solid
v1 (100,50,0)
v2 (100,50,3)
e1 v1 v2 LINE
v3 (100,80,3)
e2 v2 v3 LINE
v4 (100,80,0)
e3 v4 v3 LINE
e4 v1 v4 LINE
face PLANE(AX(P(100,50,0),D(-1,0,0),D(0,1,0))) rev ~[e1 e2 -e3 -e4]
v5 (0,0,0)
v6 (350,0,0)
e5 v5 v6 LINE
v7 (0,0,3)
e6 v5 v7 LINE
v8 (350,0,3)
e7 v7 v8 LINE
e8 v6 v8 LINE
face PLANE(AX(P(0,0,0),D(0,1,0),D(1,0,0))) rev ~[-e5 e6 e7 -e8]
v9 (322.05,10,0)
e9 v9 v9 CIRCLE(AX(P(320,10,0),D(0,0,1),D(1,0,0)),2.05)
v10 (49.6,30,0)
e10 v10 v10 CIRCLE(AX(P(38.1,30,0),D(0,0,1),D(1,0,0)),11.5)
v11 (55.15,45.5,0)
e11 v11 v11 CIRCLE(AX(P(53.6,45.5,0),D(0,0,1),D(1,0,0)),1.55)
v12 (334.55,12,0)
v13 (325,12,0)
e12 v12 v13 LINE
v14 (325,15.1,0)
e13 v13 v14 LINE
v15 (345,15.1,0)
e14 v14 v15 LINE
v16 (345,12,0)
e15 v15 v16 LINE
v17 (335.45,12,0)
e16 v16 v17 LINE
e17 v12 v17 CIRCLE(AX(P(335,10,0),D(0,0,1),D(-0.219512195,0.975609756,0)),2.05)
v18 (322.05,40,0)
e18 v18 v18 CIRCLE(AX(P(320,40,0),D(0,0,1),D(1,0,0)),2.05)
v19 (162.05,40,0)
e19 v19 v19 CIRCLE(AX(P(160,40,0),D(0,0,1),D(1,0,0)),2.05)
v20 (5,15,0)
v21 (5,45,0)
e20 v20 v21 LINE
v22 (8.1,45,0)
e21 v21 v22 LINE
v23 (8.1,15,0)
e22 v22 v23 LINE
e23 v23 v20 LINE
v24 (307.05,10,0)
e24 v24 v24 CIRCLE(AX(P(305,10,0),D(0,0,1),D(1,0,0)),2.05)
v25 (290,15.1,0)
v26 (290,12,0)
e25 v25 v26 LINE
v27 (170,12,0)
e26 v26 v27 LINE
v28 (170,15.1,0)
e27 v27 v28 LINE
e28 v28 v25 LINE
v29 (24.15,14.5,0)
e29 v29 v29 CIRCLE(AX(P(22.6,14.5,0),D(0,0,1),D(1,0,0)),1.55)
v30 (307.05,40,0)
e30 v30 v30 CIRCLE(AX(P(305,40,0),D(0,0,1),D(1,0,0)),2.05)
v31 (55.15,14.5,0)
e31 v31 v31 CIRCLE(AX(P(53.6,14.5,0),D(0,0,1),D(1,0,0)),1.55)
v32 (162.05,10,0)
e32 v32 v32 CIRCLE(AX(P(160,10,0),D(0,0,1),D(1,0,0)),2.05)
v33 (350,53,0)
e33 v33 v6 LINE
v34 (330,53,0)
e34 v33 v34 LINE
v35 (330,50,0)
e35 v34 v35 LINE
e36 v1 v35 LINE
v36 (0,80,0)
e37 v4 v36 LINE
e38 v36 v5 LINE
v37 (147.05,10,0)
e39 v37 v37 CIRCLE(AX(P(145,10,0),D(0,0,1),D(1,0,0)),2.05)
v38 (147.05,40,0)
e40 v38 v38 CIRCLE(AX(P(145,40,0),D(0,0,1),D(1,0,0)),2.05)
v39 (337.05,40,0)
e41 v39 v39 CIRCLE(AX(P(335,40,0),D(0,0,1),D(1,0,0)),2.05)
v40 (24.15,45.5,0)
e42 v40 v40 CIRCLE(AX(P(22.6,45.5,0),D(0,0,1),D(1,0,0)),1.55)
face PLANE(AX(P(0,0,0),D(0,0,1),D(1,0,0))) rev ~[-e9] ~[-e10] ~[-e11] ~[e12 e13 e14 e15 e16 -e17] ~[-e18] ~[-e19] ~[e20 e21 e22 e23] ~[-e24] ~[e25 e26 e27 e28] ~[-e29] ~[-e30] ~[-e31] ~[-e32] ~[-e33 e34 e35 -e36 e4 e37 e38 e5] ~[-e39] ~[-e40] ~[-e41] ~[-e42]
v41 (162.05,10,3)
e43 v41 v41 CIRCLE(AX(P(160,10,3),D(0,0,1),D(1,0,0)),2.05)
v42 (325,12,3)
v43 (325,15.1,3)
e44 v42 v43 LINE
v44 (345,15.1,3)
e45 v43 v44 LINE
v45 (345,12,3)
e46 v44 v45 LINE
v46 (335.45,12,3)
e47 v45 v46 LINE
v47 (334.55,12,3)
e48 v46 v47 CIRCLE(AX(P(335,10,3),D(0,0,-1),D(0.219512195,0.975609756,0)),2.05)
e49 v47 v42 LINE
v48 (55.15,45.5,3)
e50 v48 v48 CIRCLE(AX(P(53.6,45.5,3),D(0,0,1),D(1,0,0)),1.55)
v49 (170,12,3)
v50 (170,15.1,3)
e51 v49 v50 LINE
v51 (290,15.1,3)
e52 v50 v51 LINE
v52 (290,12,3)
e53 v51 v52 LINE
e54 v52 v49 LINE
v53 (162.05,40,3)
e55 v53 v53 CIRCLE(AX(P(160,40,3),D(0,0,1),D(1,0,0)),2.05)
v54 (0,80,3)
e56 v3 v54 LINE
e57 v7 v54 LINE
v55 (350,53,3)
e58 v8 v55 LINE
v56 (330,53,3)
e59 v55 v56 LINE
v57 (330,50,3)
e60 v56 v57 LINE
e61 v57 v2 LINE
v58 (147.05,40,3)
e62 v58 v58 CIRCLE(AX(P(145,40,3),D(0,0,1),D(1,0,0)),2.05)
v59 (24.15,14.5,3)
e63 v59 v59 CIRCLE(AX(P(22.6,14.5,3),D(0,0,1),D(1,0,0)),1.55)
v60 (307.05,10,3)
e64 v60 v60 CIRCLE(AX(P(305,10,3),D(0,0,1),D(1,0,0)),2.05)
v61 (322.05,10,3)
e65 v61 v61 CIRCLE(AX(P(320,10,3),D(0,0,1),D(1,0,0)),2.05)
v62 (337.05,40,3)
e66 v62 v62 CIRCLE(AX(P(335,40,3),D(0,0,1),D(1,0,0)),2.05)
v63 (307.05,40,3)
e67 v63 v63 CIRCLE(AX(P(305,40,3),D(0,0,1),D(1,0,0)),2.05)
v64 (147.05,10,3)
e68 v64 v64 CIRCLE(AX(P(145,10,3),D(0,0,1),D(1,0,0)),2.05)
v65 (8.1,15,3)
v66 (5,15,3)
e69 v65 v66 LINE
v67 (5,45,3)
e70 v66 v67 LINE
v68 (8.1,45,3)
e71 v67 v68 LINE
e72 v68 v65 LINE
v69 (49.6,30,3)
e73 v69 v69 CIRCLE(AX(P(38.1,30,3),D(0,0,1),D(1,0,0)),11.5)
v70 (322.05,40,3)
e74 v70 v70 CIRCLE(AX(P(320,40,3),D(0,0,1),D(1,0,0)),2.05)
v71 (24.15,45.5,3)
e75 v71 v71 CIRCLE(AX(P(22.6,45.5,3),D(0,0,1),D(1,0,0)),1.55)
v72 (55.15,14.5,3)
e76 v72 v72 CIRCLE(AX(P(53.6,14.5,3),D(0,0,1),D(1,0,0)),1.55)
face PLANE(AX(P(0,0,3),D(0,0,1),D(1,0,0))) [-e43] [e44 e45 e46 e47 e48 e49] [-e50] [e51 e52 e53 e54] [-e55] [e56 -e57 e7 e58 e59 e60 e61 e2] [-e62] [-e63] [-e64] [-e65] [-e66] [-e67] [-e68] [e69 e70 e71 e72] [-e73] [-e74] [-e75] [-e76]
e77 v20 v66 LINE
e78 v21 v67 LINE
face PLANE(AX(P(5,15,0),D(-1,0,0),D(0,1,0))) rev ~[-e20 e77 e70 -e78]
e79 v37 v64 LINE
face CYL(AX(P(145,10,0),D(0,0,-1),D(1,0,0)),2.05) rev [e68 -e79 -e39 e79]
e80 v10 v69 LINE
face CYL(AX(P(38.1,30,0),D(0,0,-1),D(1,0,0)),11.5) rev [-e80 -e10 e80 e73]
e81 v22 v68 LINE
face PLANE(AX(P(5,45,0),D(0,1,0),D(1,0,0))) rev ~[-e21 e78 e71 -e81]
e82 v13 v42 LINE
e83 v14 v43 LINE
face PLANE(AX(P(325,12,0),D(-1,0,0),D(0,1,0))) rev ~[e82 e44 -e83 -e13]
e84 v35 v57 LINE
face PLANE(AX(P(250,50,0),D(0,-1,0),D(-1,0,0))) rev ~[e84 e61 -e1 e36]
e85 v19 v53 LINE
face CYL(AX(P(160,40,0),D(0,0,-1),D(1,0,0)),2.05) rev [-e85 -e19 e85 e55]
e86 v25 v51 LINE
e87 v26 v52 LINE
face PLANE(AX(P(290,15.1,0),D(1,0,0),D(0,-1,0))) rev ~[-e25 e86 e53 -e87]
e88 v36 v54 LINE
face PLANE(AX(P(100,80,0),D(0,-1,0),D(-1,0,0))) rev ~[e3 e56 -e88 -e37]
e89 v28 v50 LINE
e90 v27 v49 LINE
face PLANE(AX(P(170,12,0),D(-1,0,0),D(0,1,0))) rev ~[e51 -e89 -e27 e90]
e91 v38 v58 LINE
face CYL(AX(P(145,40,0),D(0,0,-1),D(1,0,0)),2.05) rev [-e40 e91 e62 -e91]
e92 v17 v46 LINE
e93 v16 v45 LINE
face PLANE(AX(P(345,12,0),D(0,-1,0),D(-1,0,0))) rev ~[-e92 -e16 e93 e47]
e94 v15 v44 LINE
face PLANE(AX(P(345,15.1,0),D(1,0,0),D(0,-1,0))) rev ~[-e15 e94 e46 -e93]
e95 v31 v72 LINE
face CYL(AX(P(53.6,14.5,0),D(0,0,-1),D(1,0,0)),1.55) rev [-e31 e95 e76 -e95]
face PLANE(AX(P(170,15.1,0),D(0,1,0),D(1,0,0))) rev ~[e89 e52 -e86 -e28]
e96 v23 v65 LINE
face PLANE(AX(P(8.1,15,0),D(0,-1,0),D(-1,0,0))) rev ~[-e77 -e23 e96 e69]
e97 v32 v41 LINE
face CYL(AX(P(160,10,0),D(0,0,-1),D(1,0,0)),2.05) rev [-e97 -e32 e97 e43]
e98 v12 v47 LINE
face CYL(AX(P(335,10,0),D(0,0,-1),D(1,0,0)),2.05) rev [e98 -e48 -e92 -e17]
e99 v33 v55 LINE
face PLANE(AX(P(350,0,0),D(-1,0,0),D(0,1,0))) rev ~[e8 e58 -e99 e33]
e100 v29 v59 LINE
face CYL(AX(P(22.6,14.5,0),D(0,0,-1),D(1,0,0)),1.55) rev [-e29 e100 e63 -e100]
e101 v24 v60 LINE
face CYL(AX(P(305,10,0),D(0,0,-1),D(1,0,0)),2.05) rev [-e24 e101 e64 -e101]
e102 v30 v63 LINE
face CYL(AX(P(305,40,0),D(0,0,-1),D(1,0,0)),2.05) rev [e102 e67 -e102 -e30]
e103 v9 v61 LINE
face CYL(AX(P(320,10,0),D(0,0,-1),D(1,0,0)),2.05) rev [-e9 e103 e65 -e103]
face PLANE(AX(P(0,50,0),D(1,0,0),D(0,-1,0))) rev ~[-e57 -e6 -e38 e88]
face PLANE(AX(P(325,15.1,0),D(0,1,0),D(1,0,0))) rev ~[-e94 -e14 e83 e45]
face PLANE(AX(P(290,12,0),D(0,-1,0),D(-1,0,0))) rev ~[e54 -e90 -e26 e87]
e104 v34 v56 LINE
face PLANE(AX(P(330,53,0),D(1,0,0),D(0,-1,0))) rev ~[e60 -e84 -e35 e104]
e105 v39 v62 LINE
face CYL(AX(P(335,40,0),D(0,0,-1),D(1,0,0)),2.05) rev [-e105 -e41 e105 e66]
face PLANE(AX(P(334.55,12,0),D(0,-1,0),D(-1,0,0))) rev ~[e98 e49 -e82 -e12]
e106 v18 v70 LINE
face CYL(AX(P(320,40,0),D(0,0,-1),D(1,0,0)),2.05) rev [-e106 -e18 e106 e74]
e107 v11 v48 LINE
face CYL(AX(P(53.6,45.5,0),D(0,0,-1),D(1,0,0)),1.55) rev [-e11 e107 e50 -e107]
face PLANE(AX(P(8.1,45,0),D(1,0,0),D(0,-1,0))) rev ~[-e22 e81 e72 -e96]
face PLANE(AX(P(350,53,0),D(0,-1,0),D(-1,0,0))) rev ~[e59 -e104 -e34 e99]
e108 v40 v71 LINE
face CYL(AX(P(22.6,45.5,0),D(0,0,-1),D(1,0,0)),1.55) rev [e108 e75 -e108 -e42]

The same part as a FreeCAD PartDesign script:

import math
import FreeCAD as App
import Part
import Sketcher

V = App.Vector

doc = App.newDocument("Part")
body = doc.addObject("PartDesign::Body", "Body")

# Sketch on XY plane
sketch1 = doc.addObject("Sketcher::SketchObject", "Sketch")
body.addObject(sketch1)
sketch1.AttachmentSupport = (doc.XY_Plane, [""])
sketch1.MapMode = "FlatFace"
sketch1.addGeometry([
    Part.LineSegment(V(0, 0, 0), V(350, 0, 0)),  # 0
    Part.LineSegment(V(350, 0, 0), V(350, 53, 0)),  # 1
    Part.LineSegment(V(350, 53, 0), V(330, 53, 0)),  # 2
    Part.LineSegment(V(330, 53, 0), V(330, 50, 0)),  # 3
    Part.LineSegment(V(330, 50, 0), V(100, 50, 0)),  # 4
    Part.LineSegment(V(100, 50, 0), V(100, 80, 0)),  # 5
    Part.LineSegment(V(100, 80, 0), V(0, 80, 0)),  # 6
    Part.LineSegment(V(0, 80, 0), V(0, 0, 0)),  # 7
    Part.Circle(V(22.6, 14.5, 0), V(0, 0, 1), 1.6),  # 8
    Part.Circle(V(53.6, 14.5, 0), V(0, 0, 1), 1.6),  # 9
    Part.Circle(V(145, 10, 0), V(0, 0, 1), 2),  # 10
    Part.Circle(V(160, 10, 0), V(0, 0, 1), 2),  # 11
    Part.LineSegment(V(8.1, 45, 0), V(8.1, 15, 0)),  # 12
    Part.LineSegment(V(8.1, 15, 0), V(5, 15, 0)),  # 13
    Part.LineSegment(V(5, 15, 0), V(5, 45, 0)),  # 14
    Part.LineSegment(V(5, 45, 0), V(8.1, 45, 0)),  # 15
    Part.Circle(V(38.1, 30, 0), V(0, 0, 1), 11.5),  # 16
    Part.LineSegment(V(170, 12, 0), V(170, 15.1, 0)),  # 17
    Part.LineSegment(V(170, 15.1, 0), V(290, 15.1, 0)),  # 18
    Part.LineSegment(V(290, 15.1, 0), V(290, 12, 0)),  # 19
    Part.LineSegment(V(290, 12, 0), V(170, 12, 0)),  # 20
    Part.Circle(V(305, 10, 0), V(0, 0, 1), 2),  # 21
    Part.Circle(V(320, 10, 0), V(0, 0, 1), 2),  # 22
    Part.ArcOfCircle(Part.Circle(V(335, 10, 0), V(0, 0, 1), 2), math.radians(103), math.radians(437)),  # 23
    Part.LineSegment(V(334.6, 12, 0), V(325, 12, 0)),  # 24
    Part.LineSegment(V(325, 12, 0), V(325, 15.1, 0)),  # 25
    Part.LineSegment(V(325, 15.1, 0), V(345, 15.1, 0)),  # 26
    Part.LineSegment(V(345, 15.1, 0), V(345, 12, 0)),  # 27
    Part.LineSegment(V(345, 12, 0), V(335.4, 12, 0)),  # 28
    Part.Circle(V(22.6, 45.5, 0), V(0, 0, 1), 1.6),  # 29
    Part.Circle(V(53.6, 45.5, 0), V(0, 0, 1), 1.6),  # 30
    Part.Circle(V(145, 40, 0), V(0, 0, 1), 2),  # 31
    Part.Circle(V(160, 40, 0), V(0, 0, 1), 2),  # 32
    Part.Circle(V(305, 40, 0), V(0, 0, 1), 2),  # 33
    Part.Circle(V(320, 40, 0), V(0, 0, 1), 2),  # 34
    Part.Circle(V(335, 40, 0), V(0, 0, 1), 2),  # 35
], False)
sketch1.addConstraint([
    Sketcher.Constraint("Coincident", 0, 2, 1, 1),
    Sketcher.Constraint("Coincident", 1, 2, 2, 1),
    Sketcher.Constraint("Coincident", 2, 2, 3, 1),
    Sketcher.Constraint("Coincident", 3, 2, 4, 1),
    Sketcher.Constraint("Coincident", 4, 2, 5, 1),
    Sketcher.Constraint("Coincident", 5, 2, 6, 1),
    Sketcher.Constraint("Coincident", 6, 2, 7, 1),
    Sketcher.Constraint("Coincident", 7, 2, 0, 1),
    Sketcher.Constraint("Coincident", 12, 2, 13, 1),
    Sketcher.Constraint("Coincident", 13, 2, 14, 1),
    Sketcher.Constraint("Coincident", 14, 2, 15, 1),
    Sketcher.Constraint("Coincident", 15, 2, 12, 1),
    Sketcher.Constraint("Coincident", 17, 2, 18, 1),
    Sketcher.Constraint("Coincident", 18, 2, 19, 1),
    Sketcher.Constraint("Coincident", 19, 2, 20, 1),
    Sketcher.Constraint("Coincident", 20, 2, 17, 1),
    Sketcher.Constraint("Coincident", 23, 1, 24, 1),
    Sketcher.Constraint("Coincident", 24, 2, 25, 1),
    Sketcher.Constraint("Coincident", 25, 2, 26, 1),
    Sketcher.Constraint("Coincident", 26, 2, 27, 1),
    Sketcher.Constraint("Coincident", 27, 2, 28, 1),
    Sketcher.Constraint("Coincident", 28, 2, 23, 2),
    Sketcher.Constraint("Horizontal", 0),
    Sketcher.Constraint("Vertical", 1),
    Sketcher.Constraint("Horizontal", 2),
    Sketcher.Constraint("Vertical", 3),
    Sketcher.Constraint("Horizontal", 4),
    Sketcher.Constraint("Vertical", 5),
    Sketcher.Constraint("Horizontal", 6),
    Sketcher.Constraint("Vertical", 7),
    Sketcher.Constraint("Vertical", 12),
    Sketcher.Constraint("Horizontal", 13),
    Sketcher.Constraint("Vertical", 14),
    Sketcher.Constraint("Horizontal", 15),
    Sketcher.Constraint("Vertical", 17),
    Sketcher.Constraint("Horizontal", 18),
    Sketcher.Constraint("Vertical", 19),
    Sketcher.Constraint("Horizontal", 20),
    Sketcher.Constraint("Horizontal", 24),
    Sketcher.Constraint("Vertical", 25),
    Sketcher.Constraint("Horizontal", 26),
    Sketcher.Constraint("Vertical", 27),
    Sketcher.Constraint("Horizontal", 28),
    Sketcher.Constraint("Coincident", 7, 2, -1, 1),
    Sketcher.Constraint("Equal", 8, 9),
    Sketcher.Constraint("Equal", 10, 11),
    Sketcher.Constraint("Equal", 11, 21),
    Sketcher.Constraint("Equal", 21, 22),
    Sketcher.Constraint("Equal", 22, 23),
    Sketcher.Constraint("Equal", 9, 29),
    Sketcher.Constraint("Equal", 29, 30),
    Sketcher.Constraint("Equal", 23, 31),
    Sketcher.Constraint("Equal", 31, 32),
    Sketcher.Constraint("Equal", 32, 33),
    Sketcher.Constraint("Equal", 33, 34),
    Sketcher.Constraint("Equal", 34, 35),
    Sketcher.Constraint("Horizontal", 8, 3, 9, 3),
    Sketcher.Constraint("Horizontal", 10, 3, 11, 3),
    Sketcher.Constraint("Horizontal", 11, 3, 21, 3),
    Sketcher.Constraint("Horizontal", 21, 3, 22, 3),
    Sketcher.Constraint("Horizontal", 22, 3, 23, 3),
    Sketcher.Constraint("Horizontal", 29, 3, 30, 3),
    Sketcher.Constraint("Horizontal", 31, 3, 32, 3),
    Sketcher.Constraint("Horizontal", 32, 3, 33, 3),
    Sketcher.Constraint("Horizontal", 33, 3, 34, 3),
    Sketcher.Constraint("Horizontal", 34, 3, 35, 3),
    Sketcher.Constraint("Horizontal", 20, 2, 23, 1),
    Sketcher.Constraint("Horizontal", 18, 2, 25, 2),
    Sketcher.Constraint("Horizontal", 24, 2, 27, 2),
    Sketcher.Constraint("Vertical", 8, 3, 29, 3),
    Sketcher.Constraint("Vertical", 9, 3, 30, 3),
    Sketcher.Constraint("Vertical", 10, 3, 31, 3),
    Sketcher.Constraint("Vertical", 11, 3, 32, 3),
    Sketcher.Constraint("Vertical", 21, 3, 33, 3),
    Sketcher.Constraint("Vertical", 22, 3, 34, 3),
    Sketcher.Constraint("Vertical", 23, 3, 35, 3),
    Sketcher.Constraint("Equal", 2, 26),
    Sketcher.Constraint("Equal", 24, 28),
    Sketcher.Constraint("Equal", 5, 12),
    Sketcher.Constraint("Equal", 15, 17),
    Sketcher.Constraint("Diameter", 16, 23.0),
    Sketcher.Constraint("Diameter", 8, 3.1),
    Sketcher.Constraint("Diameter", 10, 4.1),
    Sketcher.Constraint("DistanceX", 0, 1, 0, 2, 350.0),
    Sketcher.Constraint("DistanceX", 2, 2, 2, 1, 20.0),
    Sketcher.Constraint("DistanceX", 6, 2, 6, 1, 100.0),
    Sketcher.Constraint("DistanceX", 18, 1, 18, 2, 120.0),
    Sketcher.Constraint("DistanceY", 3, 2, 3, 1, 3.0),
    Sketcher.Constraint("DistanceY", 5, 1, 5, 2, 30.0),
    Sketcher.Constraint("DistanceX", 13, 2, 13, 1, 3.1),
    Sketcher.Constraint("DistanceY", -1, 1, 10, 3, 10.0),
    Sketcher.Constraint("DistanceY", -1, 1, 16, 3, 30.0),
    Sketcher.Constraint("DistanceY", -1, 1, 3, 2, 50.0),
    Sketcher.Constraint("DistanceY", -1, 1, 12, 2, 15.0),
    Sketcher.Constraint("DistanceX", -1, 1, 13, 2, 5.0),
    Sketcher.Constraint("DistanceY", -1, 1, 19, 2, 12.0),
    Sketcher.Constraint("DistanceX", 8, 3, 9, 3, 31.0),
    Sketcher.Constraint("DistanceX", 10, 3, 11, 3, 15.0),
    Sketcher.Constraint("DistanceX", 21, 3, 22, 3, 15.0),
    Sketcher.Constraint("DistanceX", 22, 3, 23, 3, 15.0),
    Sketcher.Constraint("DistanceY", 8, 3, 29, 3, 31.0),
    Sketcher.Constraint("DistanceY", 10, 3, 31, 3, 30.0),
    Sketcher.Constraint("DistanceX", 23, 3, 0, 2, 15.0),
    Sketcher.Constraint("DistanceX", 4, 2, 32, 3, 60.0),
    Sketcher.Constraint("DistanceX", 12, 2, 16, 3, 30.0),
    Sketcher.Constraint("DistanceX", 11, 3, 17, 2, 10.0),
    Sketcher.Constraint("DistanceX", 8, 3, 16, 3, 15.5),
    Sketcher.Constraint("DistanceY", 8, 3, 16, 3, 15.5),
])
pad1 = doc.addObject("PartDesign::Pad", "Pad")
body.addObject(pad1)
pad1.Profile = sketch1
pad1.Length = 3

doc.recompute()
